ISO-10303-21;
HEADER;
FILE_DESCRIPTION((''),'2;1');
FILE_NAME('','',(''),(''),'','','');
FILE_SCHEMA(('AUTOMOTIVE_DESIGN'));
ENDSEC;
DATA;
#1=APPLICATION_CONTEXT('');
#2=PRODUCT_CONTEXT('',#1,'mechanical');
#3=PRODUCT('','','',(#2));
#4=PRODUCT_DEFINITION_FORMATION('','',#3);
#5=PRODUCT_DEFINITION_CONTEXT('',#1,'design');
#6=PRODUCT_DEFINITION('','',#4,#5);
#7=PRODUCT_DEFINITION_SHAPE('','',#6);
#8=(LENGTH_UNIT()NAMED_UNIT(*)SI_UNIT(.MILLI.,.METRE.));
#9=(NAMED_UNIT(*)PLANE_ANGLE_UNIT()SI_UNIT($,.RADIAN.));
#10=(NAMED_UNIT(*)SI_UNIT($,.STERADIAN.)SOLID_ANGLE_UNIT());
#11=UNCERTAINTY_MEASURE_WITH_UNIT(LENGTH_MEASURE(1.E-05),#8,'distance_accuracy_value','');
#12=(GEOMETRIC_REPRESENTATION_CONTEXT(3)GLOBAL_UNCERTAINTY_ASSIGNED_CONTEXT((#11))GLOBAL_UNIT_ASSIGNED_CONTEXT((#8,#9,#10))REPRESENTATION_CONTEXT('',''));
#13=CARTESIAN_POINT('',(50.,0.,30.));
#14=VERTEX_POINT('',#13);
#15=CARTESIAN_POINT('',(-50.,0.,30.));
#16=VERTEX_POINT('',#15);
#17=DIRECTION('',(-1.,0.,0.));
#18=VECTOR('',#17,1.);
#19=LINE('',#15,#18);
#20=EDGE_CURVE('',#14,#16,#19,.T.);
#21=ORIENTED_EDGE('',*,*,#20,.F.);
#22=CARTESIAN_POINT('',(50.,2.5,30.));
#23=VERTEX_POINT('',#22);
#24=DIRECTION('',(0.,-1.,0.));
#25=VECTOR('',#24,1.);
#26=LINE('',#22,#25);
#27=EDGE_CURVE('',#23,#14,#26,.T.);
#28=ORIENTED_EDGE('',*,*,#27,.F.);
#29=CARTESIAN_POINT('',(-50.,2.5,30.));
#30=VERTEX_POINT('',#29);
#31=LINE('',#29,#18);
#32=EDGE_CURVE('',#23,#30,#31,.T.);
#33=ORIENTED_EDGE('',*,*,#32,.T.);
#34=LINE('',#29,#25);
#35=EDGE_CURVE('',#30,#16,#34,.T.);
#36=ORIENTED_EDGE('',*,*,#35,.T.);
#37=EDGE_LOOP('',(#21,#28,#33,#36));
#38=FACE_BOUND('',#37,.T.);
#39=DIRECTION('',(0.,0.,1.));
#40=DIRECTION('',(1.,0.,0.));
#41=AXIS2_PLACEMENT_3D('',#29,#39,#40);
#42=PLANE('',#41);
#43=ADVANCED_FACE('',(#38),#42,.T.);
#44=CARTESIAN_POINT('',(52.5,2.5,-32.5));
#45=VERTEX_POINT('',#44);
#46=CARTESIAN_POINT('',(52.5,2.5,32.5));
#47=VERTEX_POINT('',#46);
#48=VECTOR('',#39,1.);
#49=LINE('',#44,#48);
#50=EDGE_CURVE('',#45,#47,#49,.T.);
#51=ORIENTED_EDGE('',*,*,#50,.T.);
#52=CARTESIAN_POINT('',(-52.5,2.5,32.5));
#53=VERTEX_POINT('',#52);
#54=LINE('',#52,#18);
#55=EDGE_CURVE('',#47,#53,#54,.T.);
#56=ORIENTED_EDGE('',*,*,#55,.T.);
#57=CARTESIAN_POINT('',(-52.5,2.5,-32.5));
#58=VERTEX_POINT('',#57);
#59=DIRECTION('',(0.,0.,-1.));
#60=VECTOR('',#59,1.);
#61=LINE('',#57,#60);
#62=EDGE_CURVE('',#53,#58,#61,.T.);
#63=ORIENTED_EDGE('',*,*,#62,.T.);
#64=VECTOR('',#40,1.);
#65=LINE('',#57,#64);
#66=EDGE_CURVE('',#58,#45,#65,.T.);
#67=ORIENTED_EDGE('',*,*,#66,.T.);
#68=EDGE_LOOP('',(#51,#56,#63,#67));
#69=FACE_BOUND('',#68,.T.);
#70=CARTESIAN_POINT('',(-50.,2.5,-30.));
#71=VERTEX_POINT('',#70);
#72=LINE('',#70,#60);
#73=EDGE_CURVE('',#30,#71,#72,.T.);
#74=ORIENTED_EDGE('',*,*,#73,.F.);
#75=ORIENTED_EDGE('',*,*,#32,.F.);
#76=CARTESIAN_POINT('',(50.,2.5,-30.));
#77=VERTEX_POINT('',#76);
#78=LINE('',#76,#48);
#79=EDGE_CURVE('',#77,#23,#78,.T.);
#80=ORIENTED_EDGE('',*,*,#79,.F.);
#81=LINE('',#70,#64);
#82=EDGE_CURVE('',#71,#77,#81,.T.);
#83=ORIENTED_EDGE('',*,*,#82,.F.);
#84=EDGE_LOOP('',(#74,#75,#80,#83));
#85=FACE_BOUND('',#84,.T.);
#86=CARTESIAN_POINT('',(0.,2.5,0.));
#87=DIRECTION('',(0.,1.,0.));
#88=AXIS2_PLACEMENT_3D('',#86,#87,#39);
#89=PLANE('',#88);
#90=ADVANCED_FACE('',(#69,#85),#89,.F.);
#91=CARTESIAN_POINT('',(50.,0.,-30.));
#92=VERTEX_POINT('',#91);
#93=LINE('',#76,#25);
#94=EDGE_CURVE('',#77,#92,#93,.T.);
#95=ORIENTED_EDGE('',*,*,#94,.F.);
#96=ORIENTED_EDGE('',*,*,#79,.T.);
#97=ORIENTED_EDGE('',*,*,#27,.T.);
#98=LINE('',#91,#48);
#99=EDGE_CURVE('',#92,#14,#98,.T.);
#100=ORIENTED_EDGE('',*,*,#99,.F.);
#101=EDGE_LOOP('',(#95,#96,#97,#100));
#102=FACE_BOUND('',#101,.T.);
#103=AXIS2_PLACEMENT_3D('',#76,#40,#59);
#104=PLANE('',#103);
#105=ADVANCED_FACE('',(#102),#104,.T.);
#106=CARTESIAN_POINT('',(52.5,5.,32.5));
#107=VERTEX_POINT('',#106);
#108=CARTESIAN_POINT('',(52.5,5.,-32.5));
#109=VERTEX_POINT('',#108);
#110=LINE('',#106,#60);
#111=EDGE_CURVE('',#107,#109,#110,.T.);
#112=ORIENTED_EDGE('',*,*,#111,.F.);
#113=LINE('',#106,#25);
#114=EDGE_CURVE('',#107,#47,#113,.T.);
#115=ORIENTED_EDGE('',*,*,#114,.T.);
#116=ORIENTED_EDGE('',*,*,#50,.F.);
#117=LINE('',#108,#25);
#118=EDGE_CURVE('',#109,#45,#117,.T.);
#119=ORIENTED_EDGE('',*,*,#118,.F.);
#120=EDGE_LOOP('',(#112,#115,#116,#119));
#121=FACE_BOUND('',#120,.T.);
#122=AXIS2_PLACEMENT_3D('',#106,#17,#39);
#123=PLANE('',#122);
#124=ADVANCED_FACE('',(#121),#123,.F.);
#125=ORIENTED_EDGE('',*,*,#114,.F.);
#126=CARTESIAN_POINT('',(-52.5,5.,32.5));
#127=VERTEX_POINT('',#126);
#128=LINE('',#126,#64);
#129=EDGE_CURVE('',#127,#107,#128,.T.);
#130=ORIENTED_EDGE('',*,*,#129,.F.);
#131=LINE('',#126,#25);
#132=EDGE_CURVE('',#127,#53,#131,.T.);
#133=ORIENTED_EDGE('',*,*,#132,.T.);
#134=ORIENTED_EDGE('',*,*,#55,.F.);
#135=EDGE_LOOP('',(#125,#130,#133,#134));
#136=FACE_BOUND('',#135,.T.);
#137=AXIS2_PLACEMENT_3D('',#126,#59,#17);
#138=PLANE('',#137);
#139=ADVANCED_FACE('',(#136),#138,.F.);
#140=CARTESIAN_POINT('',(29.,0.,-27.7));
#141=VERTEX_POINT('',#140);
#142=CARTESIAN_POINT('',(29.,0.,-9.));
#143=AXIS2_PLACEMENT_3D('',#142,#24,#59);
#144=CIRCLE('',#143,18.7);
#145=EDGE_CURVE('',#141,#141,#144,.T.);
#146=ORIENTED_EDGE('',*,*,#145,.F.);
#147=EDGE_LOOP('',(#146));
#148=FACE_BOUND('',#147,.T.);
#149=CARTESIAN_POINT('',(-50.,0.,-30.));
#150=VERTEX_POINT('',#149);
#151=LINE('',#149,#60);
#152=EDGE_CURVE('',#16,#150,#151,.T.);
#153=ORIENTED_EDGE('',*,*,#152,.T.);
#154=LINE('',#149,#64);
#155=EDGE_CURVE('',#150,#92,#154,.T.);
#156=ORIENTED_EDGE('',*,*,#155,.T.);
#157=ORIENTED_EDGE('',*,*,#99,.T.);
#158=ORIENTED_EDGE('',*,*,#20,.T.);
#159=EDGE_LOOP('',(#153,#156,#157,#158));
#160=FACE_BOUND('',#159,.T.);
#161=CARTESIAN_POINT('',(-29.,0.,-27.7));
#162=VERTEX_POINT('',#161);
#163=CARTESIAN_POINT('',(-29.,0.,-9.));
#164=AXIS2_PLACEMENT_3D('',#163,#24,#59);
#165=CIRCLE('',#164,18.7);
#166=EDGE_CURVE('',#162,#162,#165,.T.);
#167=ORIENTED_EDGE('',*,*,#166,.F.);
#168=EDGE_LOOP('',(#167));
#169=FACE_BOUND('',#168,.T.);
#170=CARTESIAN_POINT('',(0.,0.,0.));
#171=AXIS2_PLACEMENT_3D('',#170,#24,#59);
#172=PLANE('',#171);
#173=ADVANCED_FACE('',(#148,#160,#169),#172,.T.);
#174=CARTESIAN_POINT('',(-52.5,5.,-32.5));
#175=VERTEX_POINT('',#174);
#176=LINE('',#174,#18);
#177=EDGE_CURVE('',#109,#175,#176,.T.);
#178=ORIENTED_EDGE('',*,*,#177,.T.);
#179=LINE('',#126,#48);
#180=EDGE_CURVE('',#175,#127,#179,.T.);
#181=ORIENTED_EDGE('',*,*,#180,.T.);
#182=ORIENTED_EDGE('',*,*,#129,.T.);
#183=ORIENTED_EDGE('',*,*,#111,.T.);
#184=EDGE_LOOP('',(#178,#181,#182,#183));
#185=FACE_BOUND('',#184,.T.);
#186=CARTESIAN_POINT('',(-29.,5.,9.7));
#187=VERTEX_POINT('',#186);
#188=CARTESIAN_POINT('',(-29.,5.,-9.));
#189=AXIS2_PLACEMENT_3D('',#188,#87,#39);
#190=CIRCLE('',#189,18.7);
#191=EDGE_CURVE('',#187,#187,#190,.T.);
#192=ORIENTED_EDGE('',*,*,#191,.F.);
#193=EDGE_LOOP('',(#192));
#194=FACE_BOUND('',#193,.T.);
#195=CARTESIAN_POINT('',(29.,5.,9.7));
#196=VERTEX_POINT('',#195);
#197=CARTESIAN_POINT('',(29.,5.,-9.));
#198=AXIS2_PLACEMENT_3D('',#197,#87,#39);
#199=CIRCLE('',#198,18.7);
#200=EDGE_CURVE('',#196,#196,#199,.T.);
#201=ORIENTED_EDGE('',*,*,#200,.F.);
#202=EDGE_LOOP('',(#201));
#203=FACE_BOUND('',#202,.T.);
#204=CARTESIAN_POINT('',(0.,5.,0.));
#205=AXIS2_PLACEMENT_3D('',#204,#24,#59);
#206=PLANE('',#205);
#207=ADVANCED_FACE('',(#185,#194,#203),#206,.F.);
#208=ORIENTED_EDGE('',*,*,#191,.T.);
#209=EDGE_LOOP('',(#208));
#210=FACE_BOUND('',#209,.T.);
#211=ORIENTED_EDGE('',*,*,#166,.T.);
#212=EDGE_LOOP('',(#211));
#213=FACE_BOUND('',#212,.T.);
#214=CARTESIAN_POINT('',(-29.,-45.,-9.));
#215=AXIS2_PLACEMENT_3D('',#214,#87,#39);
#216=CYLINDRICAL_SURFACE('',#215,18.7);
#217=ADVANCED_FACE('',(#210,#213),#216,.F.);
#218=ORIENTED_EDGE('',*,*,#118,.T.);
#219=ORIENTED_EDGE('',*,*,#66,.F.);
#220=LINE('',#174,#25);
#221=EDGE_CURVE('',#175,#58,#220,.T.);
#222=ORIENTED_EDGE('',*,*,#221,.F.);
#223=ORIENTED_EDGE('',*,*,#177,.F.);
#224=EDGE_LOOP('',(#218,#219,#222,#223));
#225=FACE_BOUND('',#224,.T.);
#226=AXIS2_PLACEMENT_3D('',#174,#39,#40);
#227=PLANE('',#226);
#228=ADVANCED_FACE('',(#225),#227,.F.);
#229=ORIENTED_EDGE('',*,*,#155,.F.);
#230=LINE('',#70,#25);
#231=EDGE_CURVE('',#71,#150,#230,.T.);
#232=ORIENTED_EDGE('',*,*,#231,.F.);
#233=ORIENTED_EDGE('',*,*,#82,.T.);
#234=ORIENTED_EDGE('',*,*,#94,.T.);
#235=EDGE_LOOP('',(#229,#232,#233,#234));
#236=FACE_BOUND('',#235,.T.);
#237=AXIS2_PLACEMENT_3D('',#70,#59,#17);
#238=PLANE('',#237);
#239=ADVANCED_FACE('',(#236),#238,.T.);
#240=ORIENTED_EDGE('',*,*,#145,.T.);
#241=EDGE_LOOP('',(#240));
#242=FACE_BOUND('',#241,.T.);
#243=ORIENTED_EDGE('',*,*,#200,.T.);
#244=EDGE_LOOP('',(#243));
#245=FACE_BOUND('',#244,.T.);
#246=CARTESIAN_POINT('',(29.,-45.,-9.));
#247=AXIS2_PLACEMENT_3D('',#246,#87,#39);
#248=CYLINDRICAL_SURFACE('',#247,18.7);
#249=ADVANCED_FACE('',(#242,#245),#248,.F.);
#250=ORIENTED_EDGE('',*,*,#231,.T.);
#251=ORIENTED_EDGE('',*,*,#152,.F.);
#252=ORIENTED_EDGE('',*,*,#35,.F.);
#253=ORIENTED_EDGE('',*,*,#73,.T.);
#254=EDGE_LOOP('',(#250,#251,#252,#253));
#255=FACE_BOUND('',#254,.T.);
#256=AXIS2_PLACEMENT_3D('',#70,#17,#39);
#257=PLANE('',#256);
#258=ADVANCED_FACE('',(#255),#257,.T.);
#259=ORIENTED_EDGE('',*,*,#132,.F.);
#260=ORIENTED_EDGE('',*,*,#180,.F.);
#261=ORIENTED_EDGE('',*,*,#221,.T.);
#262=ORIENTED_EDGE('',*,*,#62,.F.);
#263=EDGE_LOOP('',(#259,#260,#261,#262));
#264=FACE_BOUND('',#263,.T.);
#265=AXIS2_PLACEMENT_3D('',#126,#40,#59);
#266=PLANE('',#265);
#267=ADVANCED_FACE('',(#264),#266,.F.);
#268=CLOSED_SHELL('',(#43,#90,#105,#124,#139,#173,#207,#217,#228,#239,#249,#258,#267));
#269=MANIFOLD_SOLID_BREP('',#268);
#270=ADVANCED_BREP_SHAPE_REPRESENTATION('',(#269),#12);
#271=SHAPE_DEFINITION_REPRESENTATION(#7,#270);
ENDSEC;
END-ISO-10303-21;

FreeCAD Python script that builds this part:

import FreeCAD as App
import Part
import Sketcher
from FreeCAD import Vector


def add_polygon(sketch, points):
    """Adds a closed chain of lines whose ends are joined by coincident constraints."""
    first, n = sketch.GeometryCount, len(points)
    for a, b in zip(points, points[1:] + points[:1]):
        sketch.addGeometry(Part.LineSegment(App.Vector(*a, 0), App.Vector(*b, 0)), False)
    for i in range(n):
        sketch.addConstraint(Sketcher.Constraint("Coincident", first + i, 2, first + (i + 1) % n, 1))

doc = App.newDocument("Part")
body = doc.addObject("PartDesign::Body", "Body")

# Sketch on XZ plane
sketch1 = doc.addObject("Sketcher::SketchObject", "Sketch")
body.addObject(sketch1)
sketch1.AttachmentSupport = (doc.XZ_Plane, [""])
sketch1.MapMode = "FlatFace"
add_polygon(sketch1, [(-52, -32), (-52, 32), (52, 32), (52, -32)])  # lines 0-3
sketch1.addConstraint(Sketcher.Constraint("Vertical", 0))
sketch1.addConstraint(Sketcher.Constraint("Horizontal", 1))
sketch1.addConstraint(Sketcher.Constraint("Vertical", 2))
sketch1.addConstraint(Sketcher.Constraint("Horizontal", 3))
sketch1.addConstraint(Sketcher.Constraint("Symmetric", 0, 2, 2, 2, -1, 1))
sketch1.addConstraint(Sketcher.Constraint("DistanceX", 1, 1, 1, 2, 105.0))
sketch1.addConstraint(Sketcher.Constraint("DistanceY", 0, 1, 0, 2, 65.0))
pad1 = doc.addObject("PartDesign::Pad", "Pad")
body.addObject(pad1)
pad1.Profile = sketch1
pad1.Length = 5
pad1.Reversed = True

# Sketch on XZ plane
sketch2 = doc.addObject("Sketcher::SketchObject", "Sketch001")
body.addObject(sketch2)
sketch2.AttachmentSupport = (doc.XZ_Plane, [""])
sketch2.MapMode = "FlatFace"
add_polygon(sketch2, [(-52, 32), (-52, -32), (52, -32), (52, 32)])  # lines 0-3
add_polygon(sketch2, [(50, -30), (-50, -30), (-50, 30), (50, 30)])  # lines 4-7
sketch2.addConstraint(Sketcher.Constraint("Vertical", 0))
sketch2.addConstraint(Sketcher.Constraint("Horizontal", 1))
sketch2.addConstraint(Sketcher.Constraint("Vertical", 2))
sketch2.addConstraint(Sketcher.Constraint("Horizontal", 3))
sketch2.addConstraint(Sketcher.Constraint("Horizontal", 4))
sketch2.addConstraint(Sketcher.Constraint("Vertical", 5))
sketch2.addConstraint(Sketcher.Constraint("Horizontal", 6))
sketch2.addConstraint(Sketcher.Constraint("Vertical", 7))
sketch2.addConstraint(Sketcher.Constraint("Symmetric", 0, 2, 2, 2, -1, 1))
sketch2.addConstraint(Sketcher.Constraint("Symmetric", 4, 2, 6, 2, -1, 1))
sketch2.addConstraint(Sketcher.Constraint("DistanceX", 1, 1, 1, 2, 105.0))
sketch2.addConstraint(Sketcher.Constraint("DistanceX", 4, 2, 4, 1, 100.0))
sketch2.addConstraint(Sketcher.Constraint("DistanceY", 0, 2, 0, 1, 65.0))
sketch2.addConstraint(Sketcher.Constraint("DistanceY", 5, 1, 5, 2, 60.0))
pocket1 = doc.addObject("PartDesign::Pocket", "Pocket")
body.addObject(pocket1)
pocket1.Profile = sketch2
pocket1.Length = 2.5

# Sketch on XZ plane
sketch3 = doc.addObject("Sketcher::SketchObject", "Sketch002")
body.addObject(sketch3)
sketch3.AttachmentSupport = (doc.XZ_Plane, [""])
sketch3.MapMode = "FlatFace"
sketch3.AttachmentOffset = App.Placement(Vector(0, 0, -5), App.Rotation())
sketch3.addGeometry(Part.Circle(Vector(-29, -9, 0), Vector(0, 0, 1), 19), False)
sketch3.addGeometry(Part.Circle(Vector(29, -9, 0), Vector(0, 0, 1), 19), False)
sketch3.addConstraint(Sketcher.Constraint("Equal", 0, 1))
sketch3.addConstraint(Sketcher.Constraint("Symmetric", 0, 3, 1, 3, -2))
sketch3.addConstraint(Sketcher.Constraint("Diameter", 0, 37.4))
sketch3.addConstraint(Sketcher.Constraint("DistanceX", 0, 3, -1, 1, 29.0))
sketch3.addConstraint(Sketcher.Constraint("DistanceY", 0, 3, -1, 1, 9.0))
pocket2 = doc.addObject("PartDesign::Pocket", "Pocket001")
body.addObject(pocket2)
pocket2.Profile = sketch3
pocket2.Length = 50
pocket2.Reversed = True

doc.recompute()
